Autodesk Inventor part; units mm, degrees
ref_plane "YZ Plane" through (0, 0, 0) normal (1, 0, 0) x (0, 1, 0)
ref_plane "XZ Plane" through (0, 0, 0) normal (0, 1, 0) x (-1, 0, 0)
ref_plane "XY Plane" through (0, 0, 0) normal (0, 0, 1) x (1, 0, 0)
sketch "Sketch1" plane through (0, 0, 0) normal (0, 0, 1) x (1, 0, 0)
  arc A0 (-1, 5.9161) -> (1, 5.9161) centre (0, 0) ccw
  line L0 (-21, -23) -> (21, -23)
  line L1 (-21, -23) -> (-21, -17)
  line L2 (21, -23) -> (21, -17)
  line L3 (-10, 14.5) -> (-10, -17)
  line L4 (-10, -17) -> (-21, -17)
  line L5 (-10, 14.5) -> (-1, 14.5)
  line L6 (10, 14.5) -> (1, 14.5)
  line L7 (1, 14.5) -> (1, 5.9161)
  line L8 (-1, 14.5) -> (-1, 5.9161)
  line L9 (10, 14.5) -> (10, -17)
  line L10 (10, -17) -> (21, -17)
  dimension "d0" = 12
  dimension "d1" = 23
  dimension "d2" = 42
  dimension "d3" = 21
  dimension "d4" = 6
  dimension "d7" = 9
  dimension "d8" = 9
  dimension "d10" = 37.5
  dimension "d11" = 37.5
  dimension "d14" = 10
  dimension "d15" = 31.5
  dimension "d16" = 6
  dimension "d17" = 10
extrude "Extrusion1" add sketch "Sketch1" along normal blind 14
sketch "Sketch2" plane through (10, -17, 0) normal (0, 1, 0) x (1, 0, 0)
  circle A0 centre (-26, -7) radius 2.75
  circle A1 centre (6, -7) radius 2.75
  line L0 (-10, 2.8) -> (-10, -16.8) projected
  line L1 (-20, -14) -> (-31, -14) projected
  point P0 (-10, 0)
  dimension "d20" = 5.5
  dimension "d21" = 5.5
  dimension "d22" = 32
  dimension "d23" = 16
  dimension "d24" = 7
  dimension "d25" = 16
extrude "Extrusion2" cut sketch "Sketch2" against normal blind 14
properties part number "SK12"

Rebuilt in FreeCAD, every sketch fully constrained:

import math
import FreeCAD as App
import Part
import Sketcher
Q = App.Units.Quantity

doc = App.newDocument("Part")
body = doc.addObject("PartDesign::Body", "Body")

sketch1 = body.newObject("Sketcher::SketchObject", "Sketch")
sketch1.AttachmentSupport = (doc.getObject("XY_Plane"), [""])
sketch1.MapMode = "FlatFace"
sketch1.addGeometry([
    Part.ArcOfCircle(Part.Circle(App.Vector(0, 0, 0), App.Vector(0, 0, 1), 6), math.radians(100), math.radians(440)),
    Part.LineSegment(App.Vector(-1, 5.9, 0), App.Vector(-1, 14.5, 0)),
    Part.LineSegment(App.Vector(-1, 14.5, 0), App.Vector(-10, 14.5, 0)),
    Part.LineSegment(App.Vector(-10, 14.5, 0), App.Vector(-10, -17, 0)),
    Part.LineSegment(App.Vector(-10, -17, 0), App.Vector(-21, -17, 0)),
    Part.LineSegment(App.Vector(-21, -17, 0), App.Vector(-21, -23, 0)),
    Part.LineSegment(App.Vector(-21, -23, 0), App.Vector(21, -23, 0)),
    Part.LineSegment(App.Vector(21, -23, 0), App.Vector(21, -17, 0)),
    Part.LineSegment(App.Vector(21, -17, 0), App.Vector(10, -17, 0)),
    Part.LineSegment(App.Vector(10, -17, 0), App.Vector(10, 14.5, 0)),
    Part.LineSegment(App.Vector(10, 14.5, 0), App.Vector(1, 14.5, 0)),
    Part.LineSegment(App.Vector(1, 14.5, 0), App.Vector(1, 5.9, 0)),
], False)
sketch1.addConstraint([
    Sketcher.Constraint("Coincident", 0, 1, 1, 1),
    Sketcher.Constraint("Coincident", 1, 2, 2, 1),
    Sketcher.Constraint("Coincident", 2, 2, 3, 1),
    Sketcher.Constraint("Coincident", 3, 2, 4, 1),
    Sketcher.Constraint("Coincident", 4, 2, 5, 1),
    Sketcher.Constraint("Coincident", 5, 2, 6, 1),
    Sketcher.Constraint("Coincident", 6, 2, 7, 1),
    Sketcher.Constraint("Coincident", 7, 2, 8, 1),
    Sketcher.Constraint("Coincident", 8, 2, 9, 1),
    Sketcher.Constraint("Coincident", 9, 2, 10, 1),
    Sketcher.Constraint("Coincident", 10, 2, 11, 1),
    Sketcher.Constraint("Coincident", 11, 2, 0, 2),
    Sketcher.Constraint("Vertical", 1),
    Sketcher.Constraint("Horizontal", 2),
    Sketcher.Constraint("Vertical", 3),
    Sketcher.Constraint("Horizontal", 4),
    Sketcher.Constraint("Vertical", 5),
    Sketcher.Constraint("Horizontal", 6),
    Sketcher.Constraint("Vertical", 7),
    Sketcher.Constraint("Horizontal", 8),
    Sketcher.Constraint("Vertical", 9),
    Sketcher.Constraint("Horizontal", 10),
    Sketcher.Constraint("Vertical", 11),
    Sketcher.Constraint("Coincident", 0, 3, -1, 1),
    Sketcher.Constraint("Symmetric", 4, 2, 7, 2, -2),
    Sketcher.Constraint("Symmetric", 2, 2, 9, 2, -2),
    Sketcher.Constraint("Horizontal", 0, 1, 11, 2),
    Sketcher.Constraint("Radius", 0, Q("6 mm")),
    Sketcher.Constraint("DistanceX", 2, 2, 2, 1, Q("9 mm")),
    Sketcher.Constraint("DistanceX", 6, 1, 6, 2, Q("42 mm")),
    Sketcher.Constraint("DistanceY", 5, 2, 5, 1, Q("6 mm")),
    Sketcher.Constraint("DistanceY", 3, 2, 3, 1, Q("31.5 mm")),
    Sketcher.Constraint("DistanceX", 2, 2, -1, 1, Q("10 mm")),
    Sketcher.Constraint("DistanceY", 5, 2, -1, 1, Q("23 mm")),
])
pad1 = body.newObject("PartDesign::Pad", "Pad")
pad1.Profile = sketch1
pad1.Length = 14

sketch2 = body.newObject("Sketcher::SketchObject", "Sketch001")
sketch2.AttachmentSupport = (doc.getObject("XZ_Plane"), [""])
sketch2.MapMode = "FlatFace"
sketch2.AttachmentOffset = App.Placement(App.Vector(0, 0, 17), App.Rotation())
sketch2.addGeometry([
    Part.Circle(App.Vector(-16, 7, 0), App.Vector(0, 0, 1), 2.8),
    Part.Circle(App.Vector(16, 7, 0), App.Vector(0, 0, 1), 2.8),
], False)
sketch2.addConstraint([
    Sketcher.Constraint("Equal", 0, 1),
    Sketcher.Constraint("Symmetric", 0, 3, 1, 3, -2),
    Sketcher.Constraint("Diameter", 0, Q("5.5 mm")),
    Sketcher.Constraint("DistanceX", 0, 3, -1, 1, Q("16 mm")),
    Sketcher.Constraint("DistanceY", -1, 1, 0, 3, Q("7 mm")),
])
pocket1 = body.newObject("PartDesign::Pocket", "Pocket")
pocket1.Profile = sketch2
pocket1.Length = 14
pocket1.Reversed = True

doc.recompute()
